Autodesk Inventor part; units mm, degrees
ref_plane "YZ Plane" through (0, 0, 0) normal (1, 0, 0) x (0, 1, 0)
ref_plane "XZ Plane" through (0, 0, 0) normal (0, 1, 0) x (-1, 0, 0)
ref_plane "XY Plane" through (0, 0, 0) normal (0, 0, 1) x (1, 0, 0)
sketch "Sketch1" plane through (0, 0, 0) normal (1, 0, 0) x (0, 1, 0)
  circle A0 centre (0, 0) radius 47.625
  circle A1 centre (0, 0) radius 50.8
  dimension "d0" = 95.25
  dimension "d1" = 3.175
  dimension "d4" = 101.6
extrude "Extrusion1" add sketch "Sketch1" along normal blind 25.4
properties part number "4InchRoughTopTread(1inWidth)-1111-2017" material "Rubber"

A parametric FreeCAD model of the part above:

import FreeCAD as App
import Part
import Sketcher

V = App.Vector
Q = App.Units.Quantity

doc = App.newDocument("Part")
body = doc.addObject("PartDesign::Body", "Body")

# Sketch on YZ plane
sketch1 = body.newObject("Sketcher::SketchObject", "Sketch")
sketch1.AttachmentSupport = (doc.getObject("YZ_Plane"), [""])
sketch1.MapMode = "FlatFace"
sketch1.addGeometry(Part.Circle(V(0, 0, 0), V(0, 0, 1), 50.8), False)
sketch1.addGeometry(Part.Circle(V(0, 0, 0), V(0, 0, 1), 47.625), False)
sketch1.addConstraint(Sketcher.Constraint("Coincident", 0, 3, -1, 1))
sketch1.addConstraint(Sketcher.Constraint("Coincident", 1, 3, -1, 1))
sketch1.addConstraint(Sketcher.Constraint("Diameter", 0, Q("4 in")))
sketch1.addConstraint(Sketcher.Constraint("Diameter", 1, Q("3.75 in")))
pad1 = body.newObject("PartDesign::Pad", "Pad")
pad1.Profile = sketch1
pad1.Length = Q("1 in")

doc.recompute()
